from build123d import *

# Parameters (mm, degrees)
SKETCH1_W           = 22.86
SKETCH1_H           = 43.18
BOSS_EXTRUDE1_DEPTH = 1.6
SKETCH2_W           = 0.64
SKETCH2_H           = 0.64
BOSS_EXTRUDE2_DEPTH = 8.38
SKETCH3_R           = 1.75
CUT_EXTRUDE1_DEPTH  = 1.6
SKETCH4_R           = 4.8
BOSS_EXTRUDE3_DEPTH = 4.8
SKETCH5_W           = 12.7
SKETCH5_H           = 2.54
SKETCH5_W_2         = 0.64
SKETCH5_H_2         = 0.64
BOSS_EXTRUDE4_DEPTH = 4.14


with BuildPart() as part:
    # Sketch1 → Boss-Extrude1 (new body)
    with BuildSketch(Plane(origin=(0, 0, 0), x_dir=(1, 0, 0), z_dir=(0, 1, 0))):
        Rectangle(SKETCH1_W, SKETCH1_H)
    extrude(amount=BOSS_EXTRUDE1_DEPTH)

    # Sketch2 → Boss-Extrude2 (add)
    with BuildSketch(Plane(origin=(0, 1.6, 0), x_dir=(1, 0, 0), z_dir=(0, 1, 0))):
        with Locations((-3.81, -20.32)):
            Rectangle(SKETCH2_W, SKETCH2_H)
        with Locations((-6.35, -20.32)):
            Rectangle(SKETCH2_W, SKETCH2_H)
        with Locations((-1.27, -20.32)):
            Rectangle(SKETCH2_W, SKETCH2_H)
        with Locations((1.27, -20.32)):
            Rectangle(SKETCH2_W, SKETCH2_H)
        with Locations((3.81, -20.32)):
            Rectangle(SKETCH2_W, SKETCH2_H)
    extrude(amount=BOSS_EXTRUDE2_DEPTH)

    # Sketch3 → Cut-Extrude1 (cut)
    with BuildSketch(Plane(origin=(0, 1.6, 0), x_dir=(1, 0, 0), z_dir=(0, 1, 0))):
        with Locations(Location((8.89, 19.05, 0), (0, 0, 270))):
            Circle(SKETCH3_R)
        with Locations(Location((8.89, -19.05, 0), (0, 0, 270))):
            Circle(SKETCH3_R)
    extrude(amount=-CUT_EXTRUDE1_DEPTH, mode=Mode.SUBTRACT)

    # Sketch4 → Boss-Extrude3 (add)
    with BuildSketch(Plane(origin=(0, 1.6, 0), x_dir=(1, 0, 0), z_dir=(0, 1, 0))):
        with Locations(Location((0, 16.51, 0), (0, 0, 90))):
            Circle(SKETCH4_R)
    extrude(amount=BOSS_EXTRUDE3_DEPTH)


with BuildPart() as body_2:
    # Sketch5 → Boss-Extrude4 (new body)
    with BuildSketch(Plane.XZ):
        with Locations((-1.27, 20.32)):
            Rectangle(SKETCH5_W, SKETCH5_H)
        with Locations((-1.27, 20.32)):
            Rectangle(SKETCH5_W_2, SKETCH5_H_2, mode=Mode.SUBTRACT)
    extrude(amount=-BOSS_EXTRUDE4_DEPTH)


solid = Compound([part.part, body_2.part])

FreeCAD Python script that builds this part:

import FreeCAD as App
import Part
import Sketcher
Q = App.Units.Quantity


def add_polygon(sketch, points):
    """Adds a closed chain of lines whose ends are joined by coincident constraints."""
    first, n = sketch.GeometryCount, len(points)
    for a, b in zip(points, points[1:] + points[:1]):
        sketch.addGeometry(Part.LineSegment(App.Vector(*a, 0), App.Vector(*b, 0)), False)
    for i in range(n):
        sketch.addConstraint(Sketcher.Constraint("Coincident", first + i, 2, first + (i + 1) % n, 1))

doc = App.newDocument("Part")
params = doc.addObject("Spreadsheet::Sheet", "Params")
for row, (alias, value) in enumerate([
    ("sketch1_width", "22.86 mm"),
    ("sketch1_height", "43.18 mm"),
    ("pad1_length", "1.6 mm"),
    ("sketch2_width", "0.64 mm"),
    ("pad2_length", "8.38 mm"),
    ("sketch3_diameter", "3.5 mm"),
    ("pocket1_length", "1.6 mm"),
    ("sketch4_diameter", "9.6 mm"),
    ("pad3_length", "4.8 mm"),
    ("sketch5_width", "12.7 mm"),
    ("sketch5_width2", "0.64 mm"),
    ("sketch5_height", "2.54 mm"),
    ("pad4_length", "4.14 mm"),
], start=1):
    params.set(f"A{row}", alias)
    params.set(f"B{row}", "=" + value)
    params.setAlias(f"B{row}", alias)

body = doc.addObject("PartDesign::Body", "Body")

# Sketch on XZ plane
sketch1 = doc.addObject("Sketcher::SketchObject", "Sketch")
body.addObject(sketch1)
sketch1.AttachmentSupport = (doc.XZ_Plane, [""])
sketch1.MapMode = "FlatFace"
add_polygon(sketch1, [(-11, -22), (-11, 22), (11, 22), (11, -22)])  # lines 0-3
sketch1.addConstraint([
    Sketcher.Constraint("Vertical", 0),
    Sketcher.Constraint("Horizontal", 1),
    Sketcher.Constraint("Vertical", 2),
    Sketcher.Constraint("Horizontal", 3),
    Sketcher.Constraint("Symmetric", 0, 2, 2, 2, -1, 1),
    Sketcher.Constraint("DistanceX", 1, 1, 1, 2, Q("22.86 mm")),
    Sketcher.Constraint("DistanceY", 0, 1, 0, 2, Q("43.18 mm")),
])
sketch1.setExpression("Constraints[9]", "Params.sketch1_width")
sketch1.setExpression("Constraints[10]", "Params.sketch1_height")
pad1 = doc.addObject("PartDesign::Pad", "Pad")
body.addObject(pad1)
pad1.Profile = sketch1
pad1.setExpression("Length", "Params.pad1_length")
pad1.Reversed = True

# Sketch on XZ plane
sketch2 = doc.addObject("Sketcher::SketchObject", "Sketch001")
body.addObject(sketch2)
sketch2.AttachmentSupport = (doc.XZ_Plane, [""])
sketch2.MapMode = "FlatFace"
sketch2.AttachmentOffset = App.Placement(App.Vector(0, 0, -1.6), App.Rotation())
add_polygon(sketch2, [(-4.1, 20), (-4.1, 20.6), (-3.5, 20.6), (-3.5, 20)])  # lines 0-3
add_polygon(sketch2, [(-6.7, 20), (-6.7, 20.6), (-6, 20.6), (-6, 20)])  # lines 4-7
add_polygon(sketch2, [(-1.6, 20), (-1.6, 20.6), (-0.9, 20.6), (-0.9, 20)])  # lines 8-11
add_polygon(sketch2, [(0.9, 20), (0.9, 20.6), (1.6, 20.6), (1.6, 20)])  # lines 12-15
add_polygon(sketch2, [(3.5, 20), (3.5, 20.6), (4.1, 20.6), (4.1, 20)])  # lines 16-19
sketch2.addConstraint([
    Sketcher.Constraint("Vertical", 0),
    Sketcher.Constraint("Horizontal", 1),
    Sketcher.Constraint("Vertical", 2),
    Sketcher.Constraint("Horizontal", 3),
    Sketcher.Constraint("Vertical", 4),
    Sketcher.Constraint("Horizontal", 5),
    Sketcher.Constraint("Vertical", 6),
    Sketcher.Constraint("Horizontal", 7),
    Sketcher.Constraint("Vertical", 8),
    Sketcher.Constraint("Horizontal", 9),
    Sketcher.Constraint("Vertical", 10),
    Sketcher.Constraint("Horizontal", 11),
    Sketcher.Constraint("Vertical", 12),
    Sketcher.Constraint("Horizontal", 13),
    Sketcher.Constraint("Vertical", 14),
    Sketcher.Constraint("Horizontal", 15),
    Sketcher.Constraint("Vertical", 16),
    Sketcher.Constraint("Horizontal", 17),
    Sketcher.Constraint("Vertical", 18),
    Sketcher.Constraint("Horizontal", 19),
    Sketcher.Constraint("Symmetric", 9, 2, 12, 2, -2),
    Sketcher.Constraint("Symmetric", 11, 2, 14, 2, -2),
    Sketcher.Constraint("Symmetric", 1, 2, 16, 2, -2),
    Sketcher.Constraint("Symmetric", 3, 2, 18, 2, -2),
    Sketcher.Constraint("Horizontal", 1, 2, 4, 2),
    Sketcher.Constraint("Horizontal", 3, 2, 6, 2),
    Sketcher.Constraint("Horizontal", 5, 2, 8, 2),
    Sketcher.Constraint("Horizontal", 7, 2, 10, 2),
    Sketcher.Constraint("Equal", 3, 5),
    Sketcher.Constraint("Equal", 7, 9),
    Sketcher.Constraint("Equal", 19, 0),
    Sketcher.Constraint("DistanceY", -1, 1, 2, 2, Q("20 mm")),
    Sketcher.Constraint("DistanceX", 1, 1, 1, 2, Q("0.64 mm")),
    Sketcher.Constraint("DistanceX", 5, 2, 0, 2, Q("1.9 mm")),
    Sketcher.Constraint("DistanceX", 1, 2, 8, 2, Q("1.9 mm")),
    Sketcher.Constraint("DistanceX", 9, 2, 12, 2, Q("1.9 mm")),
])
sketch2.setExpression("Constraints[52]", "Params.sketch2_width")
pad2 = doc.addObject("PartDesign::Pad", "Pad001")
body.addObject(pad2)
pad2.Profile = sketch2
pad2.setExpression("Length", "Params.pad2_length")
pad2.Reversed = True

# Sketch on XZ plane
sketch3 = doc.addObject("Sketcher::SketchObject", "Sketch002")
body.addObject(sketch3)
sketch3.AttachmentSupport = (doc.XZ_Plane, [""])
sketch3.MapMode = "FlatFace"
sketch3.AttachmentOffset = App.Placement(App.Vector(0, 0, -1.6), App.Rotation())
sketch3.addGeometry([
    Part.Circle(App.Vector(8.9, -19.1, 0), App.Vector(0, 0, 1), 1.8),
    Part.Circle(App.Vector(8.9, 19.1, 0), App.Vector(0, 0, 1), 1.8),
], False)
sketch3.addConstraint([
    Sketcher.Constraint("Equal", 0, 1),
    Sketcher.Constraint("Symmetric", 0, 3, 1, 3, -1),
    Sketcher.Constraint("Diameter", 0, Q("3.5 mm")),
    Sketcher.Constraint("DistanceY", 0, 3, 1, 3, Q("38.1 mm")),
    Sketcher.Constraint("DistanceX", -1, 1, 0, 3, Q("8.89 mm")),
])
sketch3.setExpression("Constraints[2]", "Params.sketch3_diameter")
pocket1 = doc.addObject("PartDesign::Pocket", "Pocket")
body.addObject(pocket1)
pocket1.Profile = sketch3
pocket1.setExpression("Length", "Params.pocket1_length")
pocket1.Reversed = True

# Sketch on XZ plane
sketch4 = doc.addObject("Sketcher::SketchObject", "Sketch003")
body.addObject(sketch4)
sketch4.AttachmentSupport = (doc.XZ_Plane, [""])
sketch4.MapMode = "FlatFace"
sketch4.AttachmentOffset = App.Placement(App.Vector(0, 0, -1.6), App.Rotation())
sketch4.addGeometry(Part.Circle(App.Vector(0, -16.5, 0), App.Vector(0, 0, 1), 4.8), False)
sketch4.addConstraint([
    Sketcher.Constraint("PointOnObject", 0, 3, -2),
    Sketcher.Constraint("Diameter", 0, Q("9.6 mm")),
    Sketcher.Constraint("DistanceY", 0, 3, -1, 1, Q("16.51 mm")),
])
sketch4.setExpression("Constraints[1]", "Params.sketch4_diameter")
pad3 = doc.addObject("PartDesign::Pad", "Pad002")
body.addObject(pad3)
pad3.Profile = sketch4
pad3.setExpression("Length", "Params.pad3_length")
pad3.Reversed = True
body2 = doc.addObject("PartDesign::Body", "Body001")

# Sketch on XZ plane
sketch5 = doc.addObject("Sketcher::SketchObject", "Sketch004")
body2.addObject(sketch5)
sketch5.AttachmentSupport = (doc.getObject("XZ_Plane001"), [""])
sketch5.MapMode = "FlatFace"
add_polygon(sketch5, [(-7.6, 21.6), (-7.6, 19.1), (5.1, 19.1), (5.1, 21.6)])  # lines 0-3
add_polygon(sketch5, [(-0.9, 20), (-1.6, 20), (-1.6, 20.6), (-0.9, 20.6)])  # lines 4-7
sketch5.addConstraint([
    Sketcher.Constraint("Vertical", 0),
    Sketcher.Constraint("Horizontal", 1),
    Sketcher.Constraint("Vertical", 2),
    Sketcher.Constraint("Horizontal", 3),
    Sketcher.Constraint("Horizontal", 4),
    Sketcher.Constraint("Vertical", 5),
    Sketcher.Constraint("Horizontal", 6),
    Sketcher.Constraint("Vertical", 7),
    Sketcher.Constraint("Equal", 6, 5),
    Sketcher.Constraint("DistanceX", 1, 1, 1, 2, Q("12.7 mm")),
    Sketcher.Constraint("DistanceY", -1, 1, 4, 2, Q("20 mm")),
    Sketcher.Constraint("DistanceX", 4, 2, 4, 1, Q("0.64 mm")),
    Sketcher.Constraint("DistanceY", 0, 2, 0, 1, Q("2.54 mm")),
    Sketcher.Constraint("DistanceX", 0, 2, -1, 1, Q("7.62 mm")),
    Sketcher.Constraint("DistanceY", -1, 1, 0, 2, Q("19.05 mm")),
    Sketcher.Constraint("DistanceX", 4, 2, -1, 1, Q("1.59 mm")),
])
sketch5.setExpression("Constraints[17]", "Params.sketch5_width")
sketch5.setExpression("Constraints[19]", "Params.sketch5_width2")
sketch5.setExpression("Constraints[20]", "Params.sketch5_height")
pad4 = doc.addObject("PartDesign::Pad", "Pad003")
body2.addObject(pad4)
pad4.Profile = sketch5
pad4.setExpression("Length", "Params.pad4_length")
pad4.Reversed = True

doc.recompute()
